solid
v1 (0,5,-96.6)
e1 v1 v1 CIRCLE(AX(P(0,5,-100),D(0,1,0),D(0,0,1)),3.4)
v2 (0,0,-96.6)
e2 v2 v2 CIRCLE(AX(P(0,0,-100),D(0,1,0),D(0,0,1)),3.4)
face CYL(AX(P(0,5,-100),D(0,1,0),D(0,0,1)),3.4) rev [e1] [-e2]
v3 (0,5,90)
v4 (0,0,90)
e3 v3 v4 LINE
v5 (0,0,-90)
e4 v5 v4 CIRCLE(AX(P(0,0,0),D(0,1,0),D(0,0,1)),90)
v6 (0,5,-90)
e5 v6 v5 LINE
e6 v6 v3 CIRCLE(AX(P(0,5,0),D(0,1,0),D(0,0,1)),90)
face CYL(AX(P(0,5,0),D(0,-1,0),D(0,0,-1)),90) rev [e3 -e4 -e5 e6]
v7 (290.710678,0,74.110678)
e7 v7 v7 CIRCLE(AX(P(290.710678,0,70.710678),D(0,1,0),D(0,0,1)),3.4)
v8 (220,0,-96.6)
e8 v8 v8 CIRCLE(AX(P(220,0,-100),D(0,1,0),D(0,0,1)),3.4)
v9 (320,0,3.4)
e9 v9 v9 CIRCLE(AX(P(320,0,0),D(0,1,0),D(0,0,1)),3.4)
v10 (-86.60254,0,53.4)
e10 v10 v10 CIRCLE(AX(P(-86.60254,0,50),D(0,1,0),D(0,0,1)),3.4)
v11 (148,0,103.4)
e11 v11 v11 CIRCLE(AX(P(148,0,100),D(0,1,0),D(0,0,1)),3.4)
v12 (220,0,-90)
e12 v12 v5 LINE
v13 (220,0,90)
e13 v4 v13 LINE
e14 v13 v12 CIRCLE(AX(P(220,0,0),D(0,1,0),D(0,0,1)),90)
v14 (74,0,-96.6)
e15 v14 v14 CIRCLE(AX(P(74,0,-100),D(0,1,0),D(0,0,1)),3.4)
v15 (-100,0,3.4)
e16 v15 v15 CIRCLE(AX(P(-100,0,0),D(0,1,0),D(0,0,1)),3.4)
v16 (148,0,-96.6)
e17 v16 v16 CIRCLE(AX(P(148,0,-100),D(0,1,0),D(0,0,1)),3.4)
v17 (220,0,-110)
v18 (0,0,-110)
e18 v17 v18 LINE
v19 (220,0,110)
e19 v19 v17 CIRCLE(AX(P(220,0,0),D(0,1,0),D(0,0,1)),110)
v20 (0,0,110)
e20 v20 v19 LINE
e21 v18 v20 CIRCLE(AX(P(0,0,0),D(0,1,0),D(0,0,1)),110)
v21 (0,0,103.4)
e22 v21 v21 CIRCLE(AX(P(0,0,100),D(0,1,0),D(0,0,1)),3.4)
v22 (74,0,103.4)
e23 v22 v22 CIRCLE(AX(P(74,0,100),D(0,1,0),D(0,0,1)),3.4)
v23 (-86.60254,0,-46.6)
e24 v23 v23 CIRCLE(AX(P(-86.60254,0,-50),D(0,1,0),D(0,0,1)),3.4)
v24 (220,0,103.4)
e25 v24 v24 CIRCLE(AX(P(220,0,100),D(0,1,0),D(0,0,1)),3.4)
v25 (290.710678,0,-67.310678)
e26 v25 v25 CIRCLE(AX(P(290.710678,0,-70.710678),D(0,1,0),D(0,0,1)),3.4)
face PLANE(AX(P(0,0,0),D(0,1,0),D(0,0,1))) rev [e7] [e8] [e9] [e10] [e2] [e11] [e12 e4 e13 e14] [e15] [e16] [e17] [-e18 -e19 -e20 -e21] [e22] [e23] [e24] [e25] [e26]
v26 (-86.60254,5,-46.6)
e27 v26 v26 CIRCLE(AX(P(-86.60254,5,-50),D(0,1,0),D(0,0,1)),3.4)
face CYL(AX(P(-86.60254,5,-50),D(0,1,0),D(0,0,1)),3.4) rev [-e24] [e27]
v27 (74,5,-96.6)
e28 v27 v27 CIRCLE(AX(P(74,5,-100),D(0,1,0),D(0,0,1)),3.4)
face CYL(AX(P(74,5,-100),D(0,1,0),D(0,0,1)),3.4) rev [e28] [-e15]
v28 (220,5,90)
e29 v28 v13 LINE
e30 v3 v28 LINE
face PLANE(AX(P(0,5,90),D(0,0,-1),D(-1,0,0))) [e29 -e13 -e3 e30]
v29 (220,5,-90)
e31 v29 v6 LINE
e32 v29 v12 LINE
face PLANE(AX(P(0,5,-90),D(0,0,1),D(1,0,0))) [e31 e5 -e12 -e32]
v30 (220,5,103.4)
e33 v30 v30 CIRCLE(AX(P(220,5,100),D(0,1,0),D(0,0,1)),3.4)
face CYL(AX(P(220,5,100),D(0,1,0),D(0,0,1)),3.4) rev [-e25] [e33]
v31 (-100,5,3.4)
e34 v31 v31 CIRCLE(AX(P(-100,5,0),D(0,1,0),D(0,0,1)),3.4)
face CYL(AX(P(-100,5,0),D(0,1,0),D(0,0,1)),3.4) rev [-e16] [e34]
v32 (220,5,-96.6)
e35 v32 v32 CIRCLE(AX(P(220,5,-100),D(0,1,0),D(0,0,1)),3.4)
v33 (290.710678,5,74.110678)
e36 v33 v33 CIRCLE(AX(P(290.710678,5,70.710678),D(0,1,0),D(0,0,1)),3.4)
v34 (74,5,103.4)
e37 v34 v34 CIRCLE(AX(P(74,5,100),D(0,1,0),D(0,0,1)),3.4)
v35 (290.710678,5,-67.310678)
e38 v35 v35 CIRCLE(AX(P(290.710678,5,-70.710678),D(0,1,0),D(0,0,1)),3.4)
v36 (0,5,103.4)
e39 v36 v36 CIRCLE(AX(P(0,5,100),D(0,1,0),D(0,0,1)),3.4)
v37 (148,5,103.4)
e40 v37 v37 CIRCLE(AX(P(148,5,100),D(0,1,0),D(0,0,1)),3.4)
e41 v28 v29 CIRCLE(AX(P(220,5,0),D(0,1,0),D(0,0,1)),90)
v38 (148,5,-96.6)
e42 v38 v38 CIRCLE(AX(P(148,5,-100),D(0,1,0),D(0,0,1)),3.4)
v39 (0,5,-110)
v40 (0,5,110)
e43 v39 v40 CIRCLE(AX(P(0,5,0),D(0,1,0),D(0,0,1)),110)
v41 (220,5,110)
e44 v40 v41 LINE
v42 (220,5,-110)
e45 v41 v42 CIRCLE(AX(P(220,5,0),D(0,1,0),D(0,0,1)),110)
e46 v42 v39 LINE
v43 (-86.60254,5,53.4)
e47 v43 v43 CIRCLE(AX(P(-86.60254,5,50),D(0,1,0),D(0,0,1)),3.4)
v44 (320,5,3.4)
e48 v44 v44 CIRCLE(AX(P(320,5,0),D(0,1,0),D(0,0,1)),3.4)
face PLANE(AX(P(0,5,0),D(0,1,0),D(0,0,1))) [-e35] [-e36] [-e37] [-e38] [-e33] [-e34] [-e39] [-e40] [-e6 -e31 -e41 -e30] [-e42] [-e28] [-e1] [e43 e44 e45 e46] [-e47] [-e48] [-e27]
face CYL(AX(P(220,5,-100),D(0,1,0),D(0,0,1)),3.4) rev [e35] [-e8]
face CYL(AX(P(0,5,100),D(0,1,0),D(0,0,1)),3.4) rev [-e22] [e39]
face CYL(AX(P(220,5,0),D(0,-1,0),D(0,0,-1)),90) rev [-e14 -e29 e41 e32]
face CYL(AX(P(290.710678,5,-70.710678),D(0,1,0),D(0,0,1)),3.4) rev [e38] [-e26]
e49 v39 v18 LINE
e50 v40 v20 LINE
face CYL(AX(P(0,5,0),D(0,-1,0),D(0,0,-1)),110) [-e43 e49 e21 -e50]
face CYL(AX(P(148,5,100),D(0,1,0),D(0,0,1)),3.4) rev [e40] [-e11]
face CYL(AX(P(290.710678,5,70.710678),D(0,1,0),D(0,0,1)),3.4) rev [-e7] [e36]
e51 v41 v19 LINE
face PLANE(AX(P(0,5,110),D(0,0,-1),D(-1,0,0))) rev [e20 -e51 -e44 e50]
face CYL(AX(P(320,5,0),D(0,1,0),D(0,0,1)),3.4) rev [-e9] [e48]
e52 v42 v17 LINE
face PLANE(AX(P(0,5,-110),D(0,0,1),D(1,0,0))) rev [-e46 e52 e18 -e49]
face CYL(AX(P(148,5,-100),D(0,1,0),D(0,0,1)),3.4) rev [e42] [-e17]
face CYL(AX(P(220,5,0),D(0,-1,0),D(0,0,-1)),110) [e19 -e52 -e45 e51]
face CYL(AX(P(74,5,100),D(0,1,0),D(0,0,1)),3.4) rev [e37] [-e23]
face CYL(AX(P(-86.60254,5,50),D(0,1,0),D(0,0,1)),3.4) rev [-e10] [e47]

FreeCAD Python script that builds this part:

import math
import FreeCAD as App
import Part
import Sketcher
Q = App.Units.Quantity

doc = App.newDocument("Part")
params = doc.addObject("Spreadsheet::Sheet", "Params")
for row, (alias, value) in enumerate([
    ("sketch1_radius", "110 mm"),
    ("sketch1_radius2", "90 mm"),
    ("sketch1_width", "220 mm"),
    ("pad1_length", "5 mm"),
    ("sketch2_diameter", "6.8 mm"),
    ("hole_diameter", "6.8 mm"),
], start=1):
    params.set(f"A{row}", alias)
    params.set(f"B{row}", "=" + value)
    params.setAlias(f"B{row}", alias)

body = doc.addObject("PartDesign::Body", "Body")

# Sketch on XZ plane
sketch1 = body.newObject("Sketcher::SketchObject", "Sketch")
sketch1.AttachmentSupport = (doc.getObject("XZ_Plane"), [""])
sketch1.MapMode = "FlatFace"
sketch1.addGeometry([
    Part.LineSegment(App.Vector(220, -110, 0), App.Vector(0, -110, 0)),  # 0
    Part.ArcOfCircle(Part.Circle(App.Vector(0, 0, 0), App.Vector(0, 0, 1), 110), math.radians(90), math.radians(270)),  # 1
    Part.LineSegment(App.Vector(0, 110, 0), App.Vector(220, 110, 0)),  # 2
    Part.ArcOfCircle(Part.Circle(App.Vector(220, 0, 0), App.Vector(0, 0, 1), 110), math.radians(-90), math.radians(90)),  # 3
    Part.LineSegment(App.Vector(0, -90, 0), App.Vector(220, -90, 0)),  # 4
    Part.ArcOfCircle(Part.Circle(App.Vector(220, 0, 0), App.Vector(0, 0, 1), 90), math.radians(-90), math.radians(90)),  # 5
    Part.LineSegment(App.Vector(220, 90, 0), App.Vector(0, 90, 0)),  # 6
    Part.ArcOfCircle(Part.Circle(App.Vector(0, 0, 0), App.Vector(0, 0, 1), 90), math.radians(90), math.radians(270)),  # 7
], False)
sketch1.addConstraint([
    Sketcher.Constraint("Tangent", 0, 2, 1, 2),
    Sketcher.Constraint("Tangent", 1, 1, 2, 1),
    Sketcher.Constraint("Tangent", 2, 2, 3, 2),
    Sketcher.Constraint("Tangent", 3, 1, 0, 1),
    Sketcher.Constraint("Tangent", 4, 2, 5, 1),
    Sketcher.Constraint("Tangent", 5, 2, 6, 1),
    Sketcher.Constraint("Tangent", 6, 2, 7, 1),
    Sketcher.Constraint("Tangent", 7, 2, 4, 1),
    Sketcher.Constraint("Horizontal", 0),
    Sketcher.Constraint("Horizontal", 2),
    Sketcher.Constraint("Horizontal", 4),
    Sketcher.Constraint("Horizontal", 6),
    Sketcher.Constraint("Coincident", 1, 3, -1, 1),
    Sketcher.Constraint("Coincident", 7, 3, -1, 1),
    Sketcher.Constraint("Vertical", 5, 3, 2, 2),
    Sketcher.Constraint("Radius", 1, Q("110 mm")),
    Sketcher.Constraint("Radius", 5, Q("90 mm")),
    Sketcher.Constraint("DistanceX", 0, 2, 0, 1, Q("220 mm")),
])
sketch1.setExpression("Constraints[15]", "Params.sketch1_radius")
sketch1.setExpression("Constraints[16]", "Params.sketch1_radius2")
sketch1.setExpression("Constraints[17]", "Params.sketch1_width")
pad1 = body.newObject("PartDesign::Pad", "Pad")
pad1.Profile = sketch1
pad1.setExpression("Length", "Params.pad1_length")
pad1.Reversed = True

# Sketch on XZ plane
sketch2 = body.newObject("Sketcher::SketchObject", "Sketch001")
sketch2.AttachmentSupport = (doc.getObject("XZ_Plane"), [""])
sketch2.MapMode = "FlatFace"
sketch2.AttachmentOffset = App.Placement(App.Vector(0, 0, -5), App.Rotation())
sketch2.addGeometry([
    Part.Circle(App.Vector(-86.6, 50, 0), App.Vector(0, 0, 1), 3.4),  # 0
    Part.Circle(App.Vector(0, 100, 0), App.Vector(0, 0, 1), 3.4),  # 1
    Part.Circle(App.Vector(220, -100, 0), App.Vector(0, 0, 1), 3.4),  # 2
    Part.Circle(App.Vector(-100, 0, 0), App.Vector(0, 0, 1), 3.4),  # 3
    Part.Circle(App.Vector(-86.6, -50, 0), App.Vector(0, 0, 1), 3.4),  # 4
    Part.Circle(App.Vector(0, -100, 0), App.Vector(0, 0, 1), 3.4),  # 5
    Part.Circle(App.Vector(74, -100, 0), App.Vector(0, 0, 1), 3.4),  # 6
    Part.Circle(App.Vector(148, -100, 0), App.Vector(0, 0, 1), 3.4),  # 7
    Part.Circle(App.Vector(290.7, -70.7, 0), App.Vector(0, 0, 1), 3.4),  # 8
    Part.Circle(App.Vector(320, 0, 0), App.Vector(0, 0, 1), 3.4),  # 9
    Part.Circle(App.Vector(290.7, 70.7, 0), App.Vector(0, 0, 1), 3.4),  # 10
    Part.Circle(App.Vector(220, 100, 0), App.Vector(0, 0, 1), 3.4),  # 11
    Part.Circle(App.Vector(148, 100, 0), App.Vector(0, 0, 1), 3.4),  # 12
    Part.Circle(App.Vector(74, 100, 0), App.Vector(0, 0, 1), 3.4),  # 13
], False)
sketch2.addConstraint([
    Sketcher.Constraint("Equal", 0, 1),
    Sketcher.Constraint("Equal", 1, 2),
    Sketcher.Constraint("Equal", 2, 3),
    Sketcher.Constraint("Equal", 3, 4),
    Sketcher.Constraint("Equal", 4, 5),
    Sketcher.Constraint("Equal", 5, 6),
    Sketcher.Constraint("Equal", 6, 7),
    Sketcher.Constraint("Equal", 7, 8),
    Sketcher.Constraint("Equal", 8, 9),
    Sketcher.Constraint("Equal", 9, 10),
    Sketcher.Constraint("Equal", 10, 11),
    Sketcher.Constraint("Equal", 11, 12),
    Sketcher.Constraint("Equal", 12, 13),
    Sketcher.Constraint("Symmetric", 1, 3, 5, 3, -1, 1),
    Sketcher.Constraint("Symmetric", 0, 3, 4, 3, -1),
    Sketcher.Constraint("Symmetric", 8, 3, 10, 3, -1),
    Sketcher.Constraint("Symmetric", 2, 3, 11, 3, -1),
    Sketcher.Constraint("Symmetric", 7, 3, 12, 3, -1),
    Sketcher.Constraint("Symmetric", 6, 3, 13, 3, -1),
    Sketcher.Constraint("PointOnObject", 1, 3, -2),
    Sketcher.Constraint("PointOnObject", 3, 3, -1),
    Sketcher.Constraint("PointOnObject", 9, 3, -1),
    Sketcher.Constraint("Horizontal", 2, 3, 5, 3),
    Sketcher.Constraint("Horizontal", 5, 3, 6, 3),
    Sketcher.Constraint("Horizontal", 6, 3, 7, 3),
    Sketcher.Constraint("Diameter", 0, Q("6.8 mm")),
    Sketcher.Constraint("DistanceY", -1, 1, 0, 3, Q("50 mm")),
    Sketcher.Constraint("DistanceY", -1, 1, 1, 3, Q("100 mm")),
    Sketcher.Constraint("DistanceX", -1, 1, 2, 3, Q("220 mm")),
    Sketcher.Constraint("DistanceX", 3, 3, -1, 1, Q("100 mm")),
    Sketcher.Constraint("DistanceX", -1, 1, 6, 3, Q("74 mm")),
    Sketcher.Constraint("DistanceX", -1, 1, 7, 3, Q("148 mm")),
    Sketcher.Constraint("DistanceX", -1, 1, 9, 3, Q("320 mm")),
    Sketcher.Constraint("DistanceX", 0, 3, -1, 1, Q("86.60254 mm")),
    Sketcher.Constraint("DistanceX", -1, 1, 8, 3, Q("290.710678 mm")),
    Sketcher.Constraint("DistanceY", 8, 3, -1, 1, Q("70.710678 mm")),
])
sketch2.setExpression("Constraints[25]", "Params.sketch2_diameter")
doc.recompute()
hole = body.newObject("PartDesign::Hole", "Hole")
hole.Profile = sketch2
hole.ThreadType = "None"
hole.setExpression("Diameter", "Params.hole_diameter")
hole.DepthType = "ThroughAll"
hole.Reversed = True

doc.recompute()
